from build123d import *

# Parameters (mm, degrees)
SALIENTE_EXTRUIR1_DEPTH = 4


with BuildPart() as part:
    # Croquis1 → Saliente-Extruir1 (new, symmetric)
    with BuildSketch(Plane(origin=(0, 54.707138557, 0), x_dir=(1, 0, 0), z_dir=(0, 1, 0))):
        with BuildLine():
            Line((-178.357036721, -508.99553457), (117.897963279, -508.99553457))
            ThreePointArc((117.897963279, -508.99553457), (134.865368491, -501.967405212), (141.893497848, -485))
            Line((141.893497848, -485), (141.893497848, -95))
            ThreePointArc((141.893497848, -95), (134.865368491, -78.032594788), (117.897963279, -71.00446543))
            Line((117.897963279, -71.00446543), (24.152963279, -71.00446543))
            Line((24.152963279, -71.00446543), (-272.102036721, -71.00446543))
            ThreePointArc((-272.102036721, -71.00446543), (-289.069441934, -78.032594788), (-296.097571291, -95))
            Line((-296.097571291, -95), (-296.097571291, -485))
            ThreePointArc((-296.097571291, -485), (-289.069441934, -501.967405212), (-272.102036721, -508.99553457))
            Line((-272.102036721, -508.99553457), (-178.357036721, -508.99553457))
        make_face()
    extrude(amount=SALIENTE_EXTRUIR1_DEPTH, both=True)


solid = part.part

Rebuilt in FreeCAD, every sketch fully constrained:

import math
import FreeCAD as App
import Part
import Sketcher

V = App.Vector

doc = App.newDocument("Part")
body = doc.addObject("PartDesign::Body", "Body")

# Sketch on XZ plane
sketch1 = body.newObject("Sketcher::SketchObject", "Sketch")
sketch1.AttachmentSupport = (doc.getObject("XZ_Plane"), [""])
sketch1.MapMode = "FlatFace"
sketch1.AttachmentOffset = App.Placement(V(0, 0, -54.707139), App.Rotation())
sketch1.addGeometry([
    Part.ArcOfCircle(Part.Circle(V(118, 485, 0), V(0, 0, 1), 24), math.radians(0), math.radians(90)),  # 0
    Part.LineSegment(V(142, 485, 0), V(142, 95, 0)),  # 1
    Part.ArcOfCircle(Part.Circle(V(118, 95, 0), V(0, 0, 1), 24), math.radians(-90), math.radians(0)),  # 2
    Part.LineSegment(V(118, 71, 0), V(-272, 71, 0)),  # 3
    Part.ArcOfCircle(Part.Circle(V(-272, 95, 0), V(0, 0, 1), 24), math.radians(180), math.radians(270)),  # 4
    Part.LineSegment(V(-296, 95, 0), V(-296, 485, 0)),  # 5
    Part.ArcOfCircle(Part.Circle(V(-272, 485, 0), V(0, 0, 1), 24), math.radians(90), math.radians(180)),  # 6
    Part.LineSegment(V(-272, 509, 0), V(118, 509, 0)),  # 7
], False)
sketch1.addConstraint([
    Sketcher.Constraint("Tangent", 0, 1, 1, 1),
    Sketcher.Constraint("Tangent", 1, 2, 2, 2),
    Sketcher.Constraint("Tangent", 2, 1, 3, 1),
    Sketcher.Constraint("Tangent", 3, 2, 4, 2),
    Sketcher.Constraint("Tangent", 4, 1, 5, 1),
    Sketcher.Constraint("Tangent", 5, 2, 6, 2),
    Sketcher.Constraint("Tangent", 6, 1, 7, 1),
    Sketcher.Constraint("Tangent", 7, 2, 0, 2),
    Sketcher.Constraint("Vertical", 1),
    Sketcher.Constraint("Horizontal", 3),
    Sketcher.Constraint("Vertical", 5),
    Sketcher.Constraint("Horizontal", 7),
    Sketcher.Constraint("Equal", 0, 2),
    Sketcher.Constraint("Equal", 2, 4),
    Sketcher.Constraint("Equal", 4, 6),
    Sketcher.Constraint("Equal", 7, 1),
    Sketcher.Constraint("DistanceX", 3, 2, 3, 1, 390.0),
    Sketcher.Constraint("DistanceY", -1, 1, 0, 3, 485.0),
    Sketcher.Constraint("Radius", 0, 23.995535),
    Sketcher.Constraint("DistanceX", 4, 1, -1, 1, 296.097571),
])
pad1 = body.newObject("PartDesign::Pad", "Pad")
pad1.Profile = sketch1
pad1.Length = 8
pad1.Midplane = True

doc.recompute()
